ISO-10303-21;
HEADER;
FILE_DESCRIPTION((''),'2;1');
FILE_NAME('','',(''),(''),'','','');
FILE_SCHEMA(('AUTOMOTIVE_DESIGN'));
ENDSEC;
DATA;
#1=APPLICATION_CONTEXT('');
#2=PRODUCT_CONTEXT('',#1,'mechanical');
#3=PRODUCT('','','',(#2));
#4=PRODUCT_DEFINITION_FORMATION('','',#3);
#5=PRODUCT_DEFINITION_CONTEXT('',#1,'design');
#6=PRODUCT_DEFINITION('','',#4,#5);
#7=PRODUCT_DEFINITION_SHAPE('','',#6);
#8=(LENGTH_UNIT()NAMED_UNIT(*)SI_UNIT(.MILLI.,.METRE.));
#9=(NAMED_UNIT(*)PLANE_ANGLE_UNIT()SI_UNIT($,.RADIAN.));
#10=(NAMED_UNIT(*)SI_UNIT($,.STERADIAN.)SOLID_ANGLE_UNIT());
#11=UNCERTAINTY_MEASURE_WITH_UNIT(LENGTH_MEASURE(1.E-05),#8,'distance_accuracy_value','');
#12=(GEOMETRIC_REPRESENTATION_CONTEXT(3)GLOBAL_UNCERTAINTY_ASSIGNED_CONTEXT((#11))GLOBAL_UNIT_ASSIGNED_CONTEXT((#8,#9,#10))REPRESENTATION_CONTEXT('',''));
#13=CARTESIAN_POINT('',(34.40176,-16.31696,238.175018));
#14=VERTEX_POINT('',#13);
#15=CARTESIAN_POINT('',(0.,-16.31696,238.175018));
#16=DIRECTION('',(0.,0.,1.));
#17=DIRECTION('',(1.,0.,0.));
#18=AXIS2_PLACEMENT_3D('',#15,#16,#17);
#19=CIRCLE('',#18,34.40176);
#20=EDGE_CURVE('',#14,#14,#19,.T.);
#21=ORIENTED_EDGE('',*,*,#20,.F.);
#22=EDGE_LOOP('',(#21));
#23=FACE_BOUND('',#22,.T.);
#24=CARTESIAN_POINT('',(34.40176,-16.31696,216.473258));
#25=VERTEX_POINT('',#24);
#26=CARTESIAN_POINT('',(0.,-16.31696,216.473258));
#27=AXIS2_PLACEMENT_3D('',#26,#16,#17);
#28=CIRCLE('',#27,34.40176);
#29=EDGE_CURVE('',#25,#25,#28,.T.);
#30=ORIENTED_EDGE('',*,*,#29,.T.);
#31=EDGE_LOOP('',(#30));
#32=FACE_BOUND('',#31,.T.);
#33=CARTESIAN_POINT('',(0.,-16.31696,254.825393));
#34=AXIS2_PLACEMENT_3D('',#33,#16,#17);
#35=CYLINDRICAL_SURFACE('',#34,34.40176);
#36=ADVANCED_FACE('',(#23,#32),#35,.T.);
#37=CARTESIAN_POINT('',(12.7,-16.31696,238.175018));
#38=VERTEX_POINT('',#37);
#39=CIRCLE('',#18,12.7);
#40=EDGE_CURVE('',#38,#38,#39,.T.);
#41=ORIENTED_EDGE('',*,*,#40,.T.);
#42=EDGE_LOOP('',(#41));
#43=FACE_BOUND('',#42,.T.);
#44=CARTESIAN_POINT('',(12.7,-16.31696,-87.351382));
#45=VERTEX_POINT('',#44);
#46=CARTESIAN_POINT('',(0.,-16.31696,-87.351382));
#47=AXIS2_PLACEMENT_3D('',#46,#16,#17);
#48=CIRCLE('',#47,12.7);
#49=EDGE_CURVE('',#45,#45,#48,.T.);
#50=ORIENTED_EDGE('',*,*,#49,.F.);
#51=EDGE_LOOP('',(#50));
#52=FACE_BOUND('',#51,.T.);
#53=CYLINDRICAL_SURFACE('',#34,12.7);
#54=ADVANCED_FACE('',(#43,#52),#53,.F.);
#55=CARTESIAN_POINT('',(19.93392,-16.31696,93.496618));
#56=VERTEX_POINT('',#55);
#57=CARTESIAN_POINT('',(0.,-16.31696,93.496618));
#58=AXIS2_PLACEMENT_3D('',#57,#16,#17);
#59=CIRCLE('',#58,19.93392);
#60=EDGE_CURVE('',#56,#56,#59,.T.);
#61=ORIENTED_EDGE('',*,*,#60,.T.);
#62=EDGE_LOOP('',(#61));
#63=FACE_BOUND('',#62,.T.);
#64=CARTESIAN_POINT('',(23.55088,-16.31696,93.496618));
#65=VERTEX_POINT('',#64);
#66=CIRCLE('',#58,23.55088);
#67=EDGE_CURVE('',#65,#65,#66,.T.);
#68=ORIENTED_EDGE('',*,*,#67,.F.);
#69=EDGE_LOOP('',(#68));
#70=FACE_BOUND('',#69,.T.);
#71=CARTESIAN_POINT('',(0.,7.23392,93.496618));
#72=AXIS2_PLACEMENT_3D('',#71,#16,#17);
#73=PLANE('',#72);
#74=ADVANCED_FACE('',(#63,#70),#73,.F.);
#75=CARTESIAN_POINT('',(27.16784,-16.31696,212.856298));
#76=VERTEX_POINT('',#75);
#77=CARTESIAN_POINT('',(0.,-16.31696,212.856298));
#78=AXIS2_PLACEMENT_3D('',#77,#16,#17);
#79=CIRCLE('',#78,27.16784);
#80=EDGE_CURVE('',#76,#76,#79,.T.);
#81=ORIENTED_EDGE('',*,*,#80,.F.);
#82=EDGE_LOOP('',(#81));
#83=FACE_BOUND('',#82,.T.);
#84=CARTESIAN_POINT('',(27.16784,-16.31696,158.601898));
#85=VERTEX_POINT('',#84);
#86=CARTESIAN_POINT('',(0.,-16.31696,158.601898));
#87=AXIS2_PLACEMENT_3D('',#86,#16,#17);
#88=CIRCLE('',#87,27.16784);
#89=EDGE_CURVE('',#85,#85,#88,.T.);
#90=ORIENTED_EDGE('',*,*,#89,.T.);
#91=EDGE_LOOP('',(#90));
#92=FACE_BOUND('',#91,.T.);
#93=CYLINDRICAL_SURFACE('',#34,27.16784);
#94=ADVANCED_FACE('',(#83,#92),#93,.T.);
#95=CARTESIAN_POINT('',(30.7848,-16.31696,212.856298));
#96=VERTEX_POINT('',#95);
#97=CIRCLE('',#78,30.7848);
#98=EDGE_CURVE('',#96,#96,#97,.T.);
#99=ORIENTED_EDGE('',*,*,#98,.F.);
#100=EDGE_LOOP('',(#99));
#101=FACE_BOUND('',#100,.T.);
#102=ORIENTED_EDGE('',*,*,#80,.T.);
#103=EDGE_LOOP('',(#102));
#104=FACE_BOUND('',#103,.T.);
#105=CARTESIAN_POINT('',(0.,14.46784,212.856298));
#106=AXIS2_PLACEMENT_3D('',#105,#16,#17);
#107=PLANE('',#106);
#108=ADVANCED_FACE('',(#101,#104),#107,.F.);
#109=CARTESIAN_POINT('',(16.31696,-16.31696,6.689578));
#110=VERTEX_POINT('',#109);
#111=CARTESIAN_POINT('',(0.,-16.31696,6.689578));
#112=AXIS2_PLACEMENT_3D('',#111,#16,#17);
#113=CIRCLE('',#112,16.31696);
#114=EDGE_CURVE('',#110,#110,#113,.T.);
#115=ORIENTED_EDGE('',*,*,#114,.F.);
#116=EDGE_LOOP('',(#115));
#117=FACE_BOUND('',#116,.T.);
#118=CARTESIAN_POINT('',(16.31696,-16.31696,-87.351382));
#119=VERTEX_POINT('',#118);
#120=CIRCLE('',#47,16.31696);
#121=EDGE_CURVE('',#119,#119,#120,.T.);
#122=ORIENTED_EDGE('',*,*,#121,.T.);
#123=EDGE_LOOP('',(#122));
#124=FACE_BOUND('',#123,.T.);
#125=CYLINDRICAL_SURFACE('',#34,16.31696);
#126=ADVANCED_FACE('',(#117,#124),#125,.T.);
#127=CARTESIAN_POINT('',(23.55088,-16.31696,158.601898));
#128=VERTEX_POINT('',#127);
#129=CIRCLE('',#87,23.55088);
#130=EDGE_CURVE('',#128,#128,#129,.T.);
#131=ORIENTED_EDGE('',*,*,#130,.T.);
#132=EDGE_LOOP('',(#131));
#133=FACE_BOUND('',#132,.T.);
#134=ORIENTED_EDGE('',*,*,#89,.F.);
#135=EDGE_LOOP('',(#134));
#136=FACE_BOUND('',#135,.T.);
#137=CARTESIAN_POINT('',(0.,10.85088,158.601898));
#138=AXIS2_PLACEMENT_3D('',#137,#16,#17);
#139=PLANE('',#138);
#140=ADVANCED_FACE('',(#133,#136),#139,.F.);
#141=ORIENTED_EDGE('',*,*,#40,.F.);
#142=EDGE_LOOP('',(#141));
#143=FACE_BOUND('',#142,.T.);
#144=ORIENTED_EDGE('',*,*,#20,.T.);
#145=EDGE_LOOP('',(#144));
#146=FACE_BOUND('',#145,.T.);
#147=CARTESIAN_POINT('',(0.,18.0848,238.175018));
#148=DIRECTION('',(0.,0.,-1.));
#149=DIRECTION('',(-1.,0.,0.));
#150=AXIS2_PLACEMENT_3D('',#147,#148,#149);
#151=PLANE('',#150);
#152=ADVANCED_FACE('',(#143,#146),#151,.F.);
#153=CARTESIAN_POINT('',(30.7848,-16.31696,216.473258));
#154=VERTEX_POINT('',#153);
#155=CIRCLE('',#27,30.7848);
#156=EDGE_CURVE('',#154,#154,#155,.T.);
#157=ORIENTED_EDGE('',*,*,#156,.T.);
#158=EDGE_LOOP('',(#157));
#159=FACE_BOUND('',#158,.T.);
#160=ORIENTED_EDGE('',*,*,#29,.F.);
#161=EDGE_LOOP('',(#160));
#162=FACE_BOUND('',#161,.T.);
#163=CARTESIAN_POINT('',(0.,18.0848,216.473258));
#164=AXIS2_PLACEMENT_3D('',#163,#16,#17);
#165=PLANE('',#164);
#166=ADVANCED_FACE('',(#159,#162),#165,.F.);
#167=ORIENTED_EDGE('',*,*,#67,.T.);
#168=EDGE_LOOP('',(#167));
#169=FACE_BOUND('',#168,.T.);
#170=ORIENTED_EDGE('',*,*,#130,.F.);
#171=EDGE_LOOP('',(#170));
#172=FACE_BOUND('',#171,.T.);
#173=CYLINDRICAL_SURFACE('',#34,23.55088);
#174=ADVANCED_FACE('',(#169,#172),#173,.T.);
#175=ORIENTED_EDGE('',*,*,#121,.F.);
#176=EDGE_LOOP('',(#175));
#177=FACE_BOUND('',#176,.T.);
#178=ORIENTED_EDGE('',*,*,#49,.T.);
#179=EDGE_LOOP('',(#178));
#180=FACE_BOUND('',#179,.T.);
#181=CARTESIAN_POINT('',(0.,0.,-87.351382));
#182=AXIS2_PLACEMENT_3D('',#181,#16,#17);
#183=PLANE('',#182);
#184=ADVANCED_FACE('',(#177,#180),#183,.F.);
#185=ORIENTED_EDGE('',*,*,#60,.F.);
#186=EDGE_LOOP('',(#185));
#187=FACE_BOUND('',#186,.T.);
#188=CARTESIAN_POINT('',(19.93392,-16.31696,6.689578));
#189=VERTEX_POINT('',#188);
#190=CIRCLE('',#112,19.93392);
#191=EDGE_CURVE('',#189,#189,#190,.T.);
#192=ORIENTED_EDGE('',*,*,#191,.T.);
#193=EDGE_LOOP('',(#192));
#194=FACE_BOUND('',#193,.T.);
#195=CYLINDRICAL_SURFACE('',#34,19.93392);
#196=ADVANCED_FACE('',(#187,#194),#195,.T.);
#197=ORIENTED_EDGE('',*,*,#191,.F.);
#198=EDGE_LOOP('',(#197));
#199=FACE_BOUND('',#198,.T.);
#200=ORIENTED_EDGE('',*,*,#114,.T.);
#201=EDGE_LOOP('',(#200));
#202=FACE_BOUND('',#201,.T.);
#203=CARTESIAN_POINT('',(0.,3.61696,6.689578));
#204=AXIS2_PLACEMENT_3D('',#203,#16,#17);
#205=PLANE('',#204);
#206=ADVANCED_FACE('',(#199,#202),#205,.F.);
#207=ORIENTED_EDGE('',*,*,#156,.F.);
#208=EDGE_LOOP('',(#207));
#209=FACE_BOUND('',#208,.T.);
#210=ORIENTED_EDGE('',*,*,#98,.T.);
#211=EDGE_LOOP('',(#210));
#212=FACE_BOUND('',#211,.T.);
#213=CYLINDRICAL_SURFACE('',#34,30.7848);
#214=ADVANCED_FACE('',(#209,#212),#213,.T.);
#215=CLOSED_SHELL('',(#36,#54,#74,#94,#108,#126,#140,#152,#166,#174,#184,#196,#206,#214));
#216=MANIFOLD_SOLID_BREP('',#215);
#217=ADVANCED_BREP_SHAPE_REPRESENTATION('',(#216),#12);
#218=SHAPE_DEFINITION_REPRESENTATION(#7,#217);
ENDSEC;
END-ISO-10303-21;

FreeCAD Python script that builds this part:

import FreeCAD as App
import Part
import Sketcher
from FreeCAD import Vector
Q = App.Units.Quantity

doc = App.newDocument("Part")
body = doc.addObject("PartDesign::Body", "Body")

# Sketch on YZ plane
sketch1 = doc.addObject("Sketcher::SketchObject", "Sketch")
body.addObject(sketch1)
sketch1.AttachmentSupport = (doc.YZ_Plane, [""])
sketch1.MapMode = "FlatFace"
sketch1.addGeometry(Part.LineSegment(Vector(18.1, 238.2, 0), Vector(-3.6, 238.2, 0)), False)
sketch1.addGeometry(Part.LineSegment(Vector(-3.6, 238.2, 0), Vector(-3.6, -87.4, 0)), False)
sketch1.addGeometry(Part.LineSegment(Vector(-3.6, -87.4, 0), Vector(0, -87.4, 0)), False)
sketch1.addGeometry(Part.LineSegment(Vector(0, -87.4, 0), Vector(0, 6.7, 0)), False)
sketch1.addGeometry(Part.LineSegment(Vector(0, 6.7, 0), Vector(3.6, 6.7, 0)), False)
sketch1.addGeometry(Part.LineSegment(Vector(3.6, 6.7, 0), Vector(3.6, 93.5, 0)), False)
sketch1.addGeometry(Part.LineSegment(Vector(3.6, 93.5, 0), Vector(7.2, 93.5, 0)), False)
sketch1.addGeometry(Part.LineSegment(Vector(7.2, 93.5, 0), Vector(7.2, 158.6, 0)), False)
sketch1.addGeometry(Part.LineSegment(Vector(7.2, 158.6, 0), Vector(10.9, 158.6, 0)), False)
sketch1.addGeometry(Part.LineSegment(Vector(10.9, 158.6, 0), Vector(10.9, 212.9, 0)), False)
sketch1.addGeometry(Part.LineSegment(Vector(10.9, 212.9, 0), Vector(14.5, 212.9, 0)), False)
sketch1.addGeometry(Part.LineSegment(Vector(14.5, 212.9, 0), Vector(14.5, 216.5, 0)), False)
sketch1.addGeometry(Part.LineSegment(Vector(14.5, 216.5, 0), Vector(18.1, 216.5, 0)), False)
sketch1.addGeometry(Part.LineSegment(Vector(18.1, 216.5, 0), Vector(18.1, 238.2, 0)), False)
sketch1.addGeometry(Part.LineSegment(Vector(-16.3, 238.2, 0), Vector(-16.3, -87.4, 0)), True)  # axis
sketch1.addConstraint(Sketcher.Constraint("Coincident", 0, 2, 1, 1))
sketch1.addConstraint(Sketcher.Constraint("Coincident", 1, 2, 2, 1))
sketch1.addConstraint(Sketcher.Constraint("Coincident", 2, 2, 3, 1))
sketch1.addConstraint(Sketcher.Constraint("Coincident", 3, 2, 4, 1))
sketch1.addConstraint(Sketcher.Constraint("Coincident", 4, 2, 5, 1))
sketch1.addConstraint(Sketcher.Constraint("Coincident", 5, 2, 6, 1))
sketch1.addConstraint(Sketcher.Constraint("Coincident", 6, 2, 7, 1))
sketch1.addConstraint(Sketcher.Constraint("Coincident", 7, 2, 8, 1))
sketch1.addConstraint(Sketcher.Constraint("Coincident", 8, 2, 9, 1))
sketch1.addConstraint(Sketcher.Constraint("Coincident", 9, 2, 10, 1))
sketch1.addConstraint(Sketcher.Constraint("Coincident", 10, 2, 11, 1))
sketch1.addConstraint(Sketcher.Constraint("Coincident", 11, 2, 12, 1))
sketch1.addConstraint(Sketcher.Constraint("Coincident", 12, 2, 13, 1))
sketch1.addConstraint(Sketcher.Constraint("Coincident", 13, 2, 0, 1))
sketch1.addConstraint(Sketcher.Constraint("Horizontal", 0))
sketch1.addConstraint(Sketcher.Constraint("Vertical", 1))
sketch1.addConstraint(Sketcher.Constraint("Horizontal", 2))
sketch1.addConstraint(Sketcher.Constraint("Vertical", 3))
sketch1.addConstraint(Sketcher.Constraint("Horizontal", 4))
sketch1.addConstraint(Sketcher.Constraint("Vertical", 5))
sketch1.addConstraint(Sketcher.Constraint("Horizontal", 6))
sketch1.addConstraint(Sketcher.Constraint("Vertical", 7))
sketch1.addConstraint(Sketcher.Constraint("Horizontal", 8))
sketch1.addConstraint(Sketcher.Constraint("Vertical", 9))
sketch1.addConstraint(Sketcher.Constraint("Horizontal", 10))
sketch1.addConstraint(Sketcher.Constraint("Vertical", 11))
sketch1.addConstraint(Sketcher.Constraint("Horizontal", 12))
sketch1.addConstraint(Sketcher.Constraint("Vertical", 13))
sketch1.addConstraint(Sketcher.Constraint("Vertical", 14))
sketch1.addConstraint(Sketcher.Constraint("PointOnObject", 2, 2, -2))
sketch1.addConstraint(Sketcher.Constraint("Horizontal", 13, 2, 14, 1))
sketch1.addConstraint(Sketcher.Constraint("Horizontal", 2, 2, 14, 2))
sketch1.addConstraint(Sketcher.Constraint("Equal", 2, 4))
sketch1.addConstraint(Sketcher.Constraint("Equal", 4, 6))
sketch1.addConstraint(Sketcher.Constraint("Equal", 6, 8))
sketch1.addConstraint(Sketcher.Constraint("Equal", 8, 10))
sketch1.addConstraint(Sketcher.Constraint("Equal", 10, 12))
sketch1.addConstraint(Sketcher.Constraint("Equal", 12, 11))
sketch1.addConstraint(Sketcher.Constraint("Equal", 0, 13))
sketch1.addConstraint(Sketcher.Constraint("DistanceX", 14, 1, 0, 2, Q("0.5 in")))
sketch1.addConstraint(Sketcher.Constraint("DistanceY", 1, 2, 1, 1, Q("12.816 in")))
sketch1.addConstraint(Sketcher.Constraint("DistanceY", 9, 1, 9, 2, Q("2.136 in")))
sketch1.addConstraint(Sketcher.Constraint("DistanceY", 2, 2, 5, 2, Q("7.12 in")))
sketch1.addConstraint(Sketcher.Constraint("DistanceX", 0, 2, 0, 1, Q("0.8544 in")))
sketch1.addConstraint(Sketcher.Constraint("DistanceY", 3, 1, 3, 2, Q("3.7024 in")))
sketch1.addConstraint(Sketcher.Constraint("DistanceY", -1, 1, 0, 2, Q("238.175018 mm")))
revolution = doc.addObject("PartDesign::Revolution", "Revolution")
body.addObject(revolution)
revolution.Profile = sketch1
revolution.ReferenceAxis = (sketch1, ["Axis0"])
revolution.Angle = 360

doc.recompute()
